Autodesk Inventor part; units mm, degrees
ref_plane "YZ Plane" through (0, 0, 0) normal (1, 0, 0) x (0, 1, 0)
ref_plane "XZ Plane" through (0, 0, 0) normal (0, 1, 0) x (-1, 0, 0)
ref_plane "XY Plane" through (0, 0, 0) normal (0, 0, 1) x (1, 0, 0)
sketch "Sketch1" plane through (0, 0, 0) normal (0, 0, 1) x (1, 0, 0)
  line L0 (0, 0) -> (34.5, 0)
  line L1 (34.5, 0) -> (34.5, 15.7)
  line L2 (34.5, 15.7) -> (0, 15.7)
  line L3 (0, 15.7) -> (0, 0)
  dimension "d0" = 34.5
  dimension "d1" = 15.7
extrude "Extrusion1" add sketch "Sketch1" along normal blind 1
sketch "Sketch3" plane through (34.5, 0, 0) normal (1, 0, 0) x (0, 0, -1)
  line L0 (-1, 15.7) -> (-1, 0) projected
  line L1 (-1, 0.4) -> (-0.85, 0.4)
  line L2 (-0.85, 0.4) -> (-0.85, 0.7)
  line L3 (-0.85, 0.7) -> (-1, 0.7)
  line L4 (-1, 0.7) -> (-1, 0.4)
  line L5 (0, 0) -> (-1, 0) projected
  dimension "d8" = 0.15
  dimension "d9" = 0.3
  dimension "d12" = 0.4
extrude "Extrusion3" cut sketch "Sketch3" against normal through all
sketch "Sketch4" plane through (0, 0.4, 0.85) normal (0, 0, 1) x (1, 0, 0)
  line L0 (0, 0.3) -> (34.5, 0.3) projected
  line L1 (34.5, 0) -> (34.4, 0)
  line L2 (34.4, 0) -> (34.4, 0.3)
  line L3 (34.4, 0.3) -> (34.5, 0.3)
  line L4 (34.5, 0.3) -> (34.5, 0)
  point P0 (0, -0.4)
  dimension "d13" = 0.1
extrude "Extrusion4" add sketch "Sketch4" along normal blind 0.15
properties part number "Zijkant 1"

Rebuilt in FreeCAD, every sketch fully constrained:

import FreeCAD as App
import Part
import Sketcher

V = App.Vector
Q = App.Units.Quantity

doc = App.newDocument("Part")
body = doc.addObject("PartDesign::Body", "Body")

# Sketch on XY plane
sketch1 = body.newObject("Sketcher::SketchObject", "Sketch")
sketch1.AttachmentSupport = (doc.getObject("XY_Plane"), [""])
sketch1.MapMode = "FlatFace"
sketch1.addGeometry(Part.LineSegment(V(0, 16, 0), V(0, 0, 0)), False)
sketch1.addGeometry(Part.LineSegment(V(0, 0, 0), V(34, 0, 0)), False)
sketch1.addGeometry(Part.LineSegment(V(34, 0, 0), V(34, 16, 0)), False)
sketch1.addGeometry(Part.LineSegment(V(34, 16, 0), V(0, 16, 0)), False)
sketch1.addConstraint(Sketcher.Constraint("Coincident", 0, 2, 1, 1))
sketch1.addConstraint(Sketcher.Constraint("Coincident", 1, 2, 2, 1))
sketch1.addConstraint(Sketcher.Constraint("Coincident", 2, 2, 3, 1))
sketch1.addConstraint(Sketcher.Constraint("Coincident", 3, 2, 0, 1))
sketch1.addConstraint(Sketcher.Constraint("Vertical", 0))
sketch1.addConstraint(Sketcher.Constraint("Horizontal", 1))
sketch1.addConstraint(Sketcher.Constraint("Vertical", 2))
sketch1.addConstraint(Sketcher.Constraint("Horizontal", 3))
sketch1.addConstraint(Sketcher.Constraint("Coincident", 0, 2, -1, 1))
sketch1.addConstraint(Sketcher.Constraint("DistanceX", 1, 1, 1, 2, Q("34.5 mm")))
sketch1.addConstraint(Sketcher.Constraint("DistanceY", 0, 2, 0, 1, Q("15.7 mm")))
pad1 = body.newObject("PartDesign::Pad", "Pad")
pad1.Profile = sketch1
pad1.Length = 1

# Sketch on YZ plane
sketch2 = body.newObject("Sketcher::SketchObject", "Sketch001")
sketch2.AttachmentSupport = (doc.getObject("YZ_Plane"), [""])
sketch2.MapMode = "FlatFace"
sketch2.AttachmentOffset = App.Placement(V(0, 0, 34.5), App.Rotation())
sketch2.addGeometry(Part.LineSegment(V(0.7, 0.85, 0), V(0.7, 1, 0)), False)
sketch2.addGeometry(Part.LineSegment(V(0.7, 1, 0), V(0.4, 1, 0)), False)
sketch2.addGeometry(Part.LineSegment(V(0.4, 1, 0), V(0.4, 0.85, 0)), False)
sketch2.addGeometry(Part.LineSegment(V(0.4, 0.85, 0), V(0.7, 0.85, 0)), False)
sketch2.addConstraint(Sketcher.Constraint("Coincident", 0, 2, 1, 1))
sketch2.addConstraint(Sketcher.Constraint("Coincident", 1, 2, 2, 1))
sketch2.addConstraint(Sketcher.Constraint("Coincident", 2, 2, 3, 1))
sketch2.addConstraint(Sketcher.Constraint("Coincident", 3, 2, 0, 1))
sketch2.addConstraint(Sketcher.Constraint("Vertical", 0))
sketch2.addConstraint(Sketcher.Constraint("Horizontal", 1))
sketch2.addConstraint(Sketcher.Constraint("Vertical", 2))
sketch2.addConstraint(Sketcher.Constraint("Horizontal", 3))
sketch2.addConstraint(Sketcher.Constraint("DistanceX", 1, 2, 1, 1, Q("0.3 mm")))
sketch2.addConstraint(Sketcher.Constraint("DistanceY", 0, 1, 0, 2, Q("0.15 mm")))
sketch2.addConstraint(Sketcher.Constraint("DistanceX", -1, 1, 1, 2, Q("0.4 mm")))
sketch2.addConstraint(Sketcher.Constraint("DistanceY", -1, 1, 0, 2, Q("1 mm")))
pocket1 = body.newObject("PartDesign::Pocket", "Pocket")
pocket1.Profile = sketch2
pocket1.Type = "ThroughAll"

# Sketch on XY plane
sketch3 = body.newObject("Sketcher::SketchObject", "Sketch002")
sketch3.AttachmentSupport = (doc.getObject("XY_Plane"), [""])
sketch3.MapMode = "FlatFace"
sketch3.AttachmentOffset = App.Placement(V(0, 0, 0.85), App.Rotation())
sketch3.addGeometry(Part.LineSegment(V(34.5, 0.7, 0), V(34.4, 0.7, 0)), False)
sketch3.addGeometry(Part.LineSegment(V(34.4, 0.7, 0), V(34.4, 0.4, 0)), False)
sketch3.addGeometry(Part.LineSegment(V(34.4, 0.4, 0), V(34.5, 0.4, 0)), False)
sketch3.addGeometry(Part.LineSegment(V(34.5, 0.4, 0), V(34.5, 0.7, 0)), False)
sketch3.addConstraint(Sketcher.Constraint("Coincident", 0, 2, 1, 1))
sketch3.addConstraint(Sketcher.Constraint("Coincident", 1, 2, 2, 1))
sketch3.addConstraint(Sketcher.Constraint("Coincident", 2, 2, 3, 1))
sketch3.addConstraint(Sketcher.Constraint("Coincident", 3, 2, 0, 1))
sketch3.addConstraint(Sketcher.Constraint("Horizontal", 0))
sketch3.addConstraint(Sketcher.Constraint("Vertical", 1))
sketch3.addConstraint(Sketcher.Constraint("Horizontal", 2))
sketch3.addConstraint(Sketcher.Constraint("Vertical", 3))
sketch3.addConstraint(Sketcher.Constraint("DistanceX", 0, 2, 0, 1, Q("0.1 mm")))
sketch3.addConstraint(Sketcher.Constraint("DistanceY", 1, 2, 1, 1, Q("0.3 mm")))
sketch3.addConstraint(Sketcher.Constraint("DistanceX", -1, 1, 0, 2, Q("34.4 mm")))
sketch3.addConstraint(Sketcher.Constraint("DistanceY", -1, 1, 0, 2, Q("0.7 mm")))
pad2 = body.newObject("PartDesign::Pad", "Pad001")
pad2.Profile = sketch3
pad2.Length = 0.15

doc.recompute()
